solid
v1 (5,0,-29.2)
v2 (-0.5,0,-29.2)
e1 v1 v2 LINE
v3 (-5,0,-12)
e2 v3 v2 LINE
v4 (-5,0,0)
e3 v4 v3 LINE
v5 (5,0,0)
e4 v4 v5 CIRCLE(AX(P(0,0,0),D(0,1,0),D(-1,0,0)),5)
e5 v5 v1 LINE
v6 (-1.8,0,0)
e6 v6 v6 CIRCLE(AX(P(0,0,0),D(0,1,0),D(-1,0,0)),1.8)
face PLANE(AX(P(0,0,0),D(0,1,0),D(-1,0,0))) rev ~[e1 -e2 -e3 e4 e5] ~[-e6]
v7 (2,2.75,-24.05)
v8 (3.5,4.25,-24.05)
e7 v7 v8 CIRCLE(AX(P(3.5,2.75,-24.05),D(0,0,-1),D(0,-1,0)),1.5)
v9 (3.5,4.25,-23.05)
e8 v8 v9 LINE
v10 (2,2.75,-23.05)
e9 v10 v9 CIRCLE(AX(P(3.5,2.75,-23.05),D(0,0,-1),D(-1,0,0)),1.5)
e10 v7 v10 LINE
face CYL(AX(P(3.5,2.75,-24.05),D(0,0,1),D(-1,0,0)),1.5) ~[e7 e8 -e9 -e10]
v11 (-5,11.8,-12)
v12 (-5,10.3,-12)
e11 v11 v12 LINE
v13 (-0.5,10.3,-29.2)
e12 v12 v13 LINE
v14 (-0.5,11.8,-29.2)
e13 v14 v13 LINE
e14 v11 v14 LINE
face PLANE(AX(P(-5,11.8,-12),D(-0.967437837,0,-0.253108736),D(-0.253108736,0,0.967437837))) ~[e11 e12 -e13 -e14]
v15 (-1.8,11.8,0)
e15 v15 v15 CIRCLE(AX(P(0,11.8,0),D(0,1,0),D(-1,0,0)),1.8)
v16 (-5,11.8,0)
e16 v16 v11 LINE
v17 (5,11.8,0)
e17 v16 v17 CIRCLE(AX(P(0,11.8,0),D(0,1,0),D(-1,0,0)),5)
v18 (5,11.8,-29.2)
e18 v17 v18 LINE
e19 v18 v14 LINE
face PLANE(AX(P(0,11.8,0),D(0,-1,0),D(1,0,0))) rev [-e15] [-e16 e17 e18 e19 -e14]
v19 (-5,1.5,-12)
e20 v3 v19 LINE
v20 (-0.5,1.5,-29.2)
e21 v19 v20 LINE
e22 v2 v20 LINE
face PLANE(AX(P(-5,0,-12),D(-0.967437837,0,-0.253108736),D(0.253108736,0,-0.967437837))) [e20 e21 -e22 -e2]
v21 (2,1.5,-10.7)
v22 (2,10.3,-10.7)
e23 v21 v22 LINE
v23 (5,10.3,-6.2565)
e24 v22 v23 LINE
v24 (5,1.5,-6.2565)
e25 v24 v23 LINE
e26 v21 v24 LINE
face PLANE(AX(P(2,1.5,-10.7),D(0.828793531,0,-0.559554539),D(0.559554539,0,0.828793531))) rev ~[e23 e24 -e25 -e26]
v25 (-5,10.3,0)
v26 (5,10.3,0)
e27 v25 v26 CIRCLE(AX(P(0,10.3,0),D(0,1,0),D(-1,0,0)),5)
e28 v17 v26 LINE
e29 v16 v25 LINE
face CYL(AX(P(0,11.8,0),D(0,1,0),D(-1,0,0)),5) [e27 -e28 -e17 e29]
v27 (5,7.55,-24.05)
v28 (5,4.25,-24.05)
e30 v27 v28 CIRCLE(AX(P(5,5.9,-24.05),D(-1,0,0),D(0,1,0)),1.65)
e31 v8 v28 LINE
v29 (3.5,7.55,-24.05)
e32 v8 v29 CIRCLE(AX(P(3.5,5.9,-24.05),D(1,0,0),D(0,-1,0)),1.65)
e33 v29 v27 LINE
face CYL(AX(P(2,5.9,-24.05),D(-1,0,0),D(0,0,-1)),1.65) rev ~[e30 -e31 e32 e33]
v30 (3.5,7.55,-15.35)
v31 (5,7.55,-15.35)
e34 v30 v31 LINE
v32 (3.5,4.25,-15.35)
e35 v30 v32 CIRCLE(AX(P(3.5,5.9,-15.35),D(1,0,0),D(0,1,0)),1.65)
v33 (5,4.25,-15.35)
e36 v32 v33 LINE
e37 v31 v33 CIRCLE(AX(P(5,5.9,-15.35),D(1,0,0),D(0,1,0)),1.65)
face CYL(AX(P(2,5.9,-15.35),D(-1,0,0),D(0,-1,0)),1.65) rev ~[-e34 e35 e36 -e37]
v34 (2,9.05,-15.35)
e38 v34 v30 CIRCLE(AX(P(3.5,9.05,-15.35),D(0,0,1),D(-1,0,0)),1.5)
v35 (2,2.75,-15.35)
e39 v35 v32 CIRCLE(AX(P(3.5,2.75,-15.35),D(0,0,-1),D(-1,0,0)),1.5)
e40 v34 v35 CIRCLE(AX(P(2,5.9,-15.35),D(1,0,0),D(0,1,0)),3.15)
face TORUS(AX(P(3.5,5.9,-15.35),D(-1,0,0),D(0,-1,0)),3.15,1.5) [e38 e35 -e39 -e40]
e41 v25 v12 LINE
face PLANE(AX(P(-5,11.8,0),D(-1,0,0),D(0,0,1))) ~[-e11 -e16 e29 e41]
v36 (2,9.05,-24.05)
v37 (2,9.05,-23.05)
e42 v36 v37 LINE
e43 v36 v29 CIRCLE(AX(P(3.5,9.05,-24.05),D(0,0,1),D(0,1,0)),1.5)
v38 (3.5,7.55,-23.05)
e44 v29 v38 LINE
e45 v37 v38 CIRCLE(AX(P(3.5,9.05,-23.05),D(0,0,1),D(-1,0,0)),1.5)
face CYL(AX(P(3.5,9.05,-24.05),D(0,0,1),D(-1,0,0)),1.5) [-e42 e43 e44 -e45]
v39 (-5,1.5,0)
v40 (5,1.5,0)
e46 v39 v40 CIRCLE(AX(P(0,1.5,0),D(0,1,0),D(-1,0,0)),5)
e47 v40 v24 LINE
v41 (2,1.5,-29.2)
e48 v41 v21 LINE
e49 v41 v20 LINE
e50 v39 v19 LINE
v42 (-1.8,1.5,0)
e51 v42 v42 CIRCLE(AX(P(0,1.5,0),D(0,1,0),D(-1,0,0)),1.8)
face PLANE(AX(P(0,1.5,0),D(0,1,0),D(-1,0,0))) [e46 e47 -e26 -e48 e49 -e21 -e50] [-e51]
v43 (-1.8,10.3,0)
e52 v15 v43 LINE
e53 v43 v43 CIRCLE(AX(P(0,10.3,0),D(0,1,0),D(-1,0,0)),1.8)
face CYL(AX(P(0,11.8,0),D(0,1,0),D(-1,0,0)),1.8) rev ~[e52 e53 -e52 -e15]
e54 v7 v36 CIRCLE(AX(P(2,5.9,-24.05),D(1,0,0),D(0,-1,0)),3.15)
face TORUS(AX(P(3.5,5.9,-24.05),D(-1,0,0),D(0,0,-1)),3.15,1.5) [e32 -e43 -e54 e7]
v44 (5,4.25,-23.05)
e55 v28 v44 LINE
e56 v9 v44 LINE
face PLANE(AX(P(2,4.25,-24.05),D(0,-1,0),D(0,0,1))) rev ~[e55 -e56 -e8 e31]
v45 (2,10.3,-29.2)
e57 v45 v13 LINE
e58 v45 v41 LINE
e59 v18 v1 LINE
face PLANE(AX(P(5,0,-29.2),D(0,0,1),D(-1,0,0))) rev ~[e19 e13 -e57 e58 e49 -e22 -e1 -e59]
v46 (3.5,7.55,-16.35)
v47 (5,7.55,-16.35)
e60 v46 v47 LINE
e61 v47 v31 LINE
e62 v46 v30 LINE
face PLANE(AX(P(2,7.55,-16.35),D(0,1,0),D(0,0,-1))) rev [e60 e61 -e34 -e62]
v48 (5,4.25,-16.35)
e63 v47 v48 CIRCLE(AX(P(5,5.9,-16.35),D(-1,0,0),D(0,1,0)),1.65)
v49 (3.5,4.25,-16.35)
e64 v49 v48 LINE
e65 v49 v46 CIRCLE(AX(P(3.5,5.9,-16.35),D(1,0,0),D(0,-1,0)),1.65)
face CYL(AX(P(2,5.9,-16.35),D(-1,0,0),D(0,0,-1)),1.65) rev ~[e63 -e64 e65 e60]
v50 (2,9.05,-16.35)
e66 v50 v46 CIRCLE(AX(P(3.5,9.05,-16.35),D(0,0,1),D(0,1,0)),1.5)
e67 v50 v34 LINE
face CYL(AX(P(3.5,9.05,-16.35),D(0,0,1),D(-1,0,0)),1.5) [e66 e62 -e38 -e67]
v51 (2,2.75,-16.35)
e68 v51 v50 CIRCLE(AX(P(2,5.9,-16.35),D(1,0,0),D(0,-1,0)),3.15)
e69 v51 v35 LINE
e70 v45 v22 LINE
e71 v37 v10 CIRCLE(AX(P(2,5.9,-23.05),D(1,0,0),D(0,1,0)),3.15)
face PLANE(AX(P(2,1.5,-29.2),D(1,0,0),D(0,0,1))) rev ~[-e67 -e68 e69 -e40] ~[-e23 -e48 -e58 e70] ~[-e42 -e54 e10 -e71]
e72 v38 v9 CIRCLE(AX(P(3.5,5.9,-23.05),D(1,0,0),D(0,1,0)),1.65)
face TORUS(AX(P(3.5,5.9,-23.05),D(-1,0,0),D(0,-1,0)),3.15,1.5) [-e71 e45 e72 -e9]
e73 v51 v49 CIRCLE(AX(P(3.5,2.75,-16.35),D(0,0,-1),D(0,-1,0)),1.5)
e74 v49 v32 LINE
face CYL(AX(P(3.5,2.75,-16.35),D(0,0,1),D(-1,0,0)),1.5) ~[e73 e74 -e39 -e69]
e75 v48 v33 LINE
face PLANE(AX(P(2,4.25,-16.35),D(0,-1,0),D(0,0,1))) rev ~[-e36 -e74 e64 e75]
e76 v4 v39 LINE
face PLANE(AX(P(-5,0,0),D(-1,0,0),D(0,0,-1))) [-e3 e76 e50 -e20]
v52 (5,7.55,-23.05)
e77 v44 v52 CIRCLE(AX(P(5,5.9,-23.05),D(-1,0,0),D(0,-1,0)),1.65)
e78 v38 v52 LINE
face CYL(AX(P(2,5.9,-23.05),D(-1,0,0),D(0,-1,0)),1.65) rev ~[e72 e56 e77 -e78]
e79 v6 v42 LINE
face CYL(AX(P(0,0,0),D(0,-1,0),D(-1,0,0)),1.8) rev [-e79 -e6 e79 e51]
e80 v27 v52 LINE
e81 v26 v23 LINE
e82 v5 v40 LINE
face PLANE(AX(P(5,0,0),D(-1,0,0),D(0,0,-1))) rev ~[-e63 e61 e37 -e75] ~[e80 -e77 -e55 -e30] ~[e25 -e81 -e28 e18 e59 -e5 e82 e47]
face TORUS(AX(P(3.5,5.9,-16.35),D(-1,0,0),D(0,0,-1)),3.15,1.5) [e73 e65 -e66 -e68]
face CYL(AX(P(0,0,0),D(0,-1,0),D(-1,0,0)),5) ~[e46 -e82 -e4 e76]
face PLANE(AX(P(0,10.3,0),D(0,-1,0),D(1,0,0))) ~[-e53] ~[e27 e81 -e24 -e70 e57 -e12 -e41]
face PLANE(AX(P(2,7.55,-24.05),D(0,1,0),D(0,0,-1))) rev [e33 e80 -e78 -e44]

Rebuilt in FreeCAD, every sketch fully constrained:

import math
import FreeCAD as App
import Part
import Sketcher

V = App.Vector


def edges_at(feature, points):
    """Names of the edges that pass closest to the given points."""
    edges = feature.Shape.Edges
    near = lambda p: min(range(len(edges)), key=lambda i: edges[i].distToShape(Part.Vertex(*p))[0])
    return sorted({f"Edge{near(p) + 1}" for p in points})

doc = App.newDocument("Part")
body = doc.addObject("PartDesign::Body", "Body")

sketch1 = body.newObject("Sketcher::SketchObject", "Sketch")
sketch1.AttachmentSupport = (doc.getObject("XZ_Plane"), [""])
sketch1.MapMode = "FlatFace"
sketch1.addGeometry(Part.LineSegment(V(-5, -12, 0), V(-5, 0, 0)), False)
sketch1.addGeometry(Part.ArcOfCircle(Part.Circle(V(0, 0, 0), V(0, 0, 1), 5), math.radians(0), math.radians(180)), False)
sketch1.addGeometry(Part.LineSegment(V(5, 0, 0), V(5, -29.2, 0)), False)
sketch1.addGeometry(Part.LineSegment(V(5, -29.2, 0), V(-0.5, -29.2, 0)), False)
sketch1.addGeometry(Part.LineSegment(V(-0.5, -29.2, 0), V(-5, -12, 0)), False)
sketch1.addGeometry(Part.Circle(V(0, 0, 0), V(0, 0, 1), 1.8), False)
sketch1.addConstraint(Sketcher.Constraint("Tangent", 0, 2, 1, 2))
sketch1.addConstraint(Sketcher.Constraint("Tangent", 1, 1, 2, 1))
sketch1.addConstraint(Sketcher.Constraint("Coincident", 2, 2, 3, 1))
sketch1.addConstraint(Sketcher.Constraint("Coincident", 3, 2, 4, 1))
sketch1.addConstraint(Sketcher.Constraint("Coincident", 4, 2, 0, 1))
sketch1.addConstraint(Sketcher.Constraint("Vertical", 0))
sketch1.addConstraint(Sketcher.Constraint("Vertical", 2))
sketch1.addConstraint(Sketcher.Constraint("Horizontal", 3))
sketch1.addConstraint(Sketcher.Constraint("Coincident", 1, 3, -1, 1))
sketch1.addConstraint(Sketcher.Constraint("Coincident", 5, 3, -1, 1))
sketch1.addConstraint(Sketcher.Constraint("Radius", 1, 5.0))
sketch1.addConstraint(Sketcher.Constraint("Diameter", 5, 3.6))
sketch1.addConstraint(Sketcher.Constraint("DistanceY", 0, 1, 0, 2, 12.0))
sketch1.addConstraint(Sketcher.Constraint("DistanceX", 3, 2, 3, 1, 5.5))
sketch1.addConstraint(Sketcher.Constraint("DistanceY", 2, 2, 2, 1, 29.2))
pad1 = body.newObject("PartDesign::Pad", "Pad")
pad1.Profile = sketch1
pad1.Length = 1.5
pad1.Reversed = True

sketch2 = body.newObject("Sketcher::SketchObject", "Sketch001")
sketch2.AttachmentSupport = (doc.getObject("XZ_Plane"), [""])
sketch2.MapMode = "FlatFace"
sketch2.AttachmentOffset = App.Placement(V(0, 0, -1.5), App.Rotation())
sketch2.addGeometry(Part.LineSegment(V(5, -29.2, 0), V(2, -29.2, 0)), False)
sketch2.addGeometry(Part.LineSegment(V(2, -29.2, 0), V(2, -10.7, 0)), False)
sketch2.addGeometry(Part.LineSegment(V(2, -10.7, 0), V(5, -6.3, 0)), False)
sketch2.addGeometry(Part.LineSegment(V(5, -6.3, 0), V(5, -29.2, 0)), False)
sketch2.addConstraint(Sketcher.Constraint("Coincident", 0, 2, 1, 1))
sketch2.addConstraint(Sketcher.Constraint("Coincident", 1, 2, 2, 1))
sketch2.addConstraint(Sketcher.Constraint("Coincident", 2, 2, 3, 1))
sketch2.addConstraint(Sketcher.Constraint("Coincident", 3, 2, 0, 1))
sketch2.addConstraint(Sketcher.Constraint("Horizontal", 0))
sketch2.addConstraint(Sketcher.Constraint("Vertical", 1))
sketch2.addConstraint(Sketcher.Constraint("Vertical", 3))
sketch2.addConstraint(Sketcher.Constraint("DistanceX", 0, 2, 0, 1, 3.0))
sketch2.addConstraint(Sketcher.Constraint("DistanceY", 1, 1, 1, 2, 18.5))
sketch2.addConstraint(Sketcher.Constraint("DistanceX", -1, 1, 0, 2, 2.0))
sketch2.addConstraint(Sketcher.Constraint("DistanceY", 0, 2, -1, 1, 29.2))
sketch2.addConstraint(Sketcher.Constraint("DistanceY", 3, 2, 3, 1, 22.9435))
pad2 = body.newObject("PartDesign::Pad", "Pad001")
pad2.Profile = sketch2
pad2.Length = 4.4
pad2.Reversed = True

sketch3 = body.newObject("Sketcher::SketchObject", "Sketch002")
sketch3.AttachmentSupport = (doc.getObject("YZ_Plane"), [""])
sketch3.MapMode = "FlatFace"
sketch3.AttachmentOffset = App.Placement(V(0, 0, 2), App.Rotation())
sketch3.addGeometry(Part.ArcOfCircle(Part.Circle(V(5.9, -24.1, 0), V(0, 0, 1), 1.7), math.radians(180), math.radians(270)), False)
sketch3.addGeometry(Part.LineSegment(V(4.2, -24.1, 0), V(4.2, -23.1, 0)), False)
sketch3.addGeometry(Part.ArcOfCircle(Part.Circle(V(5.9, -23.1, 0), V(0, 0, 1), 1.7), math.radians(90), math.radians(180)), False)
sketch3.addGeometry(Part.LineSegment(V(5.9, -21.4, 0), V(5.9, -25.7, 0)), False)
sketch3.addGeometry(Part.ArcOfCircle(Part.Circle(V(5.9, -16.4, 0), V(0, 0, 1), 1.7), math.radians(180), math.radians(270)), False)
sketch3.addGeometry(Part.LineSegment(V(4.2, -16.4, 0), V(4.2, -15.3, 0)), False)
sketch3.addGeometry(Part.ArcOfCircle(Part.Circle(V(5.9, -15.3, 0), V(0, 0, 1), 1.7), math.radians(90), math.radians(180)), False)
sketch3.addGeometry(Part.LineSegment(V(5.9, -13.7, 0), V(5.9, -18, 0)), False)
sketch3.addConstraint(Sketcher.Constraint("Tangent", 0, 1, 1, 1))
sketch3.addConstraint(Sketcher.Constraint("Tangent", 1, 2, 2, 2))
sketch3.addConstraint(Sketcher.Constraint("Coincident", 2, 1, 3, 1))
sketch3.addConstraint(Sketcher.Constraint("Coincident", 3, 2, 0, 2))
sketch3.addConstraint(Sketcher.Constraint("Tangent", 4, 1, 5, 1))
sketch3.addConstraint(Sketcher.Constraint("Tangent", 5, 2, 6, 2))
sketch3.addConstraint(Sketcher.Constraint("Coincident", 6, 1, 7, 1))
sketch3.addConstraint(Sketcher.Constraint("Coincident", 7, 2, 4, 2))
sketch3.addConstraint(Sketcher.Constraint("Vertical", 1))
sketch3.addConstraint(Sketcher.Constraint("Vertical", 3))
sketch3.addConstraint(Sketcher.Constraint("Vertical", 5))
sketch3.addConstraint(Sketcher.Constraint("Vertical", 7))
sketch3.addConstraint(Sketcher.Constraint("Equal", 0, 2))
sketch3.addConstraint(Sketcher.Constraint("Equal", 2, 4))
sketch3.addConstraint(Sketcher.Constraint("Equal", 4, 6))
sketch3.addConstraint(Sketcher.Constraint("Vertical", 2, 3, 4, 3))
sketch3.addConstraint(Sketcher.Constraint("Vertical", 6, 3, 2, 1))
sketch3.addConstraint(Sketcher.Constraint("Vertical", 3, 2, 6, 1))
sketch3.addConstraint(Sketcher.Constraint("Equal", 1, 5))
sketch3.addConstraint(Sketcher.Constraint("DistanceY", 1, 1, 1, 2, 1.0))
sketch3.addConstraint(Sketcher.Constraint("Radius", 0, 1.65))
sketch3.addConstraint(Sketcher.Constraint("DistanceY", 7, 2, -1, 1, 18.0))
sketch3.addConstraint(Sketcher.Constraint("DistanceX", -1, 1, 0, 3, 5.9))
sketch3.addConstraint(Sketcher.Constraint("DistanceY", 2, 1, -1, 1, 21.4))
pocket1 = body.newObject("PartDesign::Pocket", "Pocket")
pocket1.Profile = sketch3
pocket1.Length = 4.4
pocket1.Reversed = True
doc.recompute()

fillet = body.newObject("PartDesign::Fillet", "Fillet")
fillet.Base = (pocket1, edges_at(pocket1, [
    (2, 4.25, -23.55),
    (2, 4.733, -25.217),
    (2, 4.733, -21.883),
    (2, 4.733, -17.517),
    (2, 4.733, -14.183),
    (2, 4.25, -15.85),
]))
fillet.Radius = 1.5
doc.recompute()

datumplane = body.newObject("PartDesign::Plane", "DatumPlane")
datumplane.AttachmentSupport = (doc.getObject("XZ_Plane"), [""])
datumplane.MapMode = "FlatFace"
datumplane.AttachmentOffset = App.Placement(V(0, 0, -5.9), App.Rotation())
mirrored = body.newObject("PartDesign::Mirrored", "Mirrored")
mirrored.TransformMode = "Transform body"
mirrored.MirrorPlane = (datumplane, [""])
body.Tip = mirrored

doc.recompute()
